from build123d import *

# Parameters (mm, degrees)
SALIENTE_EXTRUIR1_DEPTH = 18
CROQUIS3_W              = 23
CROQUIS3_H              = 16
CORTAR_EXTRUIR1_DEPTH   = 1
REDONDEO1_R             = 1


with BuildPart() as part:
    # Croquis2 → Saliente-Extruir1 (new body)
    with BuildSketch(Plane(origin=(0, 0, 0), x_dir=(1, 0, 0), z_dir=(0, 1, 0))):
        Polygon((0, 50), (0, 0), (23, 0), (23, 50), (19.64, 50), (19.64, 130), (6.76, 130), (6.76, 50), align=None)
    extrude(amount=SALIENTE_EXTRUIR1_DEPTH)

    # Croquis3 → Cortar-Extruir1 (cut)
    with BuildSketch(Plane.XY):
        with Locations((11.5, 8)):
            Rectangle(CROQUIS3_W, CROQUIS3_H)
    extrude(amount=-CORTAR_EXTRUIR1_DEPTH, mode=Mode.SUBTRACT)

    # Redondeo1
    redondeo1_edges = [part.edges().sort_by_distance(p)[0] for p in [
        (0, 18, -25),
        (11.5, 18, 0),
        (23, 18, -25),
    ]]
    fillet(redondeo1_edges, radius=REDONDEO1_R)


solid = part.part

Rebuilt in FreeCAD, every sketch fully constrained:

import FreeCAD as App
import Part
import Sketcher
Q = App.Units.Quantity


def edges_at(feature, points):
    """Names of the edges that pass closest to the given points."""
    edges = feature.Shape.Edges
    near = lambda p: min(range(len(edges)), key=lambda i: edges[i].distToShape(Part.Vertex(*p))[0])
    return sorted({f"Edge{near(p) + 1}" for p in points})


def add_polygon(sketch, points):
    """Adds a closed chain of lines whose ends are joined by coincident constraints."""
    first, n = sketch.GeometryCount, len(points)
    for a, b in zip(points, points[1:] + points[:1]):
        sketch.addGeometry(Part.LineSegment(App.Vector(*a, 0), App.Vector(*b, 0)), False)
    for i in range(n):
        sketch.addConstraint(Sketcher.Constraint("Coincident", first + i, 2, first + (i + 1) % n, 1))

doc = App.newDocument("Part")
body = doc.addObject("PartDesign::Body", "Body")

sketch1 = doc.addObject("Sketcher::SketchObject", "Sketch")
body.addObject(sketch1)
sketch1.AttachmentSupport = (doc.XZ_Plane, [""])
sketch1.MapMode = "FlatFace"
add_polygon(sketch1, [(0, -50), (0, 0), (23, 0), (23, -50), (19.6, -50), (19.6, -130), (6.8, -130), (6.8, -50)])
sketch1.addConstraint([
    Sketcher.Constraint("Vertical", 0),
    Sketcher.Constraint("Horizontal", 1),
    Sketcher.Constraint("Vertical", 2),
    Sketcher.Constraint("Horizontal", 3),
    Sketcher.Constraint("Vertical", 4),
    Sketcher.Constraint("Horizontal", 5),
    Sketcher.Constraint("Vertical", 6),
    Sketcher.Constraint("Horizontal", 7),
    Sketcher.Constraint("Coincident", 0, 2, -1, 1),
    Sketcher.Constraint("Horizontal", 3, 2, 6, 2),
    Sketcher.Constraint("DistanceX", 1, 1, 1, 2, Q("23 mm")),
    Sketcher.Constraint("DistanceY", 0, 1, 0, 2, Q("50 mm")),
    Sketcher.Constraint("DistanceY", 4, 2, 4, 1, Q("80 mm")),
    Sketcher.Constraint("DistanceX", 3, 2, 3, 1, Q("3.36 mm")),
    Sketcher.Constraint("DistanceX", 5, 2, 5, 1, Q("12.88 mm")),
])
pad1 = doc.addObject("PartDesign::Pad", "Pad")
body.addObject(pad1)
pad1.Profile = sketch1
pad1.Length = 18
pad1.Reversed = True

sketch2 = doc.addObject("Sketcher::SketchObject", "Sketch001")
body.addObject(sketch2)
sketch2.AttachmentSupport = (doc.XY_Plane, [""])
sketch2.MapMode = "FlatFace"
add_polygon(sketch2, [(0, 16), (0, 0), (23, 0), (23, 16)])
sketch2.addConstraint([
    Sketcher.Constraint("Vertical", 0),
    Sketcher.Constraint("Horizontal", 1),
    Sketcher.Constraint("Vertical", 2),
    Sketcher.Constraint("Horizontal", 3),
    Sketcher.Constraint("Coincident", 0, 2, -1, 1),
    Sketcher.Constraint("DistanceX", 1, 1, 1, 2, Q("23 mm")),
    Sketcher.Constraint("DistanceY", 0, 2, 0, 1, Q("16 mm")),
])
pocket1 = doc.addObject("PartDesign::Pocket", "Pocket")
body.addObject(pocket1)
pocket1.Profile = sketch2
pocket1.Length = 1
doc.recompute()

fillet = doc.addObject("PartDesign::Fillet", "Fillet")
body.addObject(fillet)
fillet.Base = (pocket1, edges_at(pocket1, [(0, 18, -25), (11.5, 18, 0), (23, 18, -25)]))
fillet.Radius = 1

doc.recompute()
